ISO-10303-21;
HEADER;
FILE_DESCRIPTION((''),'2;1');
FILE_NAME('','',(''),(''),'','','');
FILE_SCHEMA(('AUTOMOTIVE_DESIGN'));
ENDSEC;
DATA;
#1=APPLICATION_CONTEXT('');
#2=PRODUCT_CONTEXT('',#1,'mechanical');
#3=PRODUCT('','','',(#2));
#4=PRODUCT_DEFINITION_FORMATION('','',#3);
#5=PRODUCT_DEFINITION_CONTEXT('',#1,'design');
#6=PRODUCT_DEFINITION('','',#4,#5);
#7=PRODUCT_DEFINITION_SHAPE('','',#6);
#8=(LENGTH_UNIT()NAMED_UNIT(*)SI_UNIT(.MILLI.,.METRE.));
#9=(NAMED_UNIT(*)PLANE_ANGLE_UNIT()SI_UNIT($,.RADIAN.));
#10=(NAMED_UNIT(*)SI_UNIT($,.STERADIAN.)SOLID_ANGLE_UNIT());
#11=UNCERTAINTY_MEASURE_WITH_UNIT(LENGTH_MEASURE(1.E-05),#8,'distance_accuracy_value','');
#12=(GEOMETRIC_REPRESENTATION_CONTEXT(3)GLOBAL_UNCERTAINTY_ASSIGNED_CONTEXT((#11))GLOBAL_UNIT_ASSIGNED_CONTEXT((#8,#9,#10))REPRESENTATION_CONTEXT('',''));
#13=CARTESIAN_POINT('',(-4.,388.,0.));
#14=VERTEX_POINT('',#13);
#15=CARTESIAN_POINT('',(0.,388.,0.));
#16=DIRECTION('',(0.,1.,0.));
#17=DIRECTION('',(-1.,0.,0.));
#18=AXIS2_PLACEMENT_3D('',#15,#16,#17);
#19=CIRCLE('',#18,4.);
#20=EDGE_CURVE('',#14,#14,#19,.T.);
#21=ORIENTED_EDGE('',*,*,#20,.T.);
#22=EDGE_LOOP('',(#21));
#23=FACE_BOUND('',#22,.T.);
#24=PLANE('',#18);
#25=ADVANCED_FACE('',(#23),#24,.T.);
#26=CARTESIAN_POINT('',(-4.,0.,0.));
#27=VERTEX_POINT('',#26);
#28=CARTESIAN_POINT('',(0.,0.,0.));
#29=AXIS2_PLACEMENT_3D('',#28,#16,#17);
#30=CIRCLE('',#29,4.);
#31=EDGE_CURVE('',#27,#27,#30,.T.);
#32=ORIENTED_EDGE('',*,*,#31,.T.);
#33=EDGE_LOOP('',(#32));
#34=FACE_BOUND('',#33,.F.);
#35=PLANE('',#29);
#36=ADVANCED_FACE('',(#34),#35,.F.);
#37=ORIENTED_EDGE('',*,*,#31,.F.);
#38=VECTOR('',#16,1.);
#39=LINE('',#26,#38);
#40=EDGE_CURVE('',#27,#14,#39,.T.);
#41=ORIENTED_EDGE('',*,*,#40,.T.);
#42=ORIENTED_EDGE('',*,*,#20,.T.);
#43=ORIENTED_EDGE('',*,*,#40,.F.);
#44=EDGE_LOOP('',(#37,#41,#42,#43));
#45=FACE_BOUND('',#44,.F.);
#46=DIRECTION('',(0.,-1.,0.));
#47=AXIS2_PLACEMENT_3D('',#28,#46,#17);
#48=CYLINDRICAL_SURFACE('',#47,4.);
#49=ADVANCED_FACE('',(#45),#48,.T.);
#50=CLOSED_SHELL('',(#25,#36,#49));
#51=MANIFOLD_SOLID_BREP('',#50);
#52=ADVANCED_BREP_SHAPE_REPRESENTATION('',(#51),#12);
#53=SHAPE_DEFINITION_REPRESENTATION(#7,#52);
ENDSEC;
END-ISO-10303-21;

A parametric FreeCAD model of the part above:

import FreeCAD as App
import Part
import Sketcher
Q = App.Units.Quantity

doc = App.newDocument("Part")
body = doc.addObject("PartDesign::Body", "Body")

# Sketch on XZ plane
sketch1 = body.newObject("Sketcher::SketchObject", "Sketch")
sketch1.AttachmentSupport = (doc.getObject("XZ_Plane"), [""])
sketch1.MapMode = "FlatFace"
sketch1.addGeometry(Part.Circle(App.Vector(0, 0, 0), App.Vector(0, 0, 1), 4), False)
sketch1.addConstraint([
    Sketcher.Constraint("Coincident", 0, 3, -1, 1),
    Sketcher.Constraint("Diameter", 0, Q("8 mm")),
])
pad1 = body.newObject("PartDesign::Pad", "Pad")
pad1.Profile = sketch1
pad1.Length = 388
pad1.Reversed = True

doc.recompute()
